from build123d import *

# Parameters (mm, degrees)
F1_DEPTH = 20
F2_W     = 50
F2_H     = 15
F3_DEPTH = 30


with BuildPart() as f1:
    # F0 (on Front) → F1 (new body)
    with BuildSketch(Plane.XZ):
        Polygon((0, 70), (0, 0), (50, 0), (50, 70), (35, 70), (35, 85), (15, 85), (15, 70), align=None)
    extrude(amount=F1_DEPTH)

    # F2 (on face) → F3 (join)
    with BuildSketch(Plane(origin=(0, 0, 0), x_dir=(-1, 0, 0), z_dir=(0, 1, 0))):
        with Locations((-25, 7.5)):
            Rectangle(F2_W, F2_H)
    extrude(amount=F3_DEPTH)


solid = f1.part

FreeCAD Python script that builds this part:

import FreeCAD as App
import Part
import Sketcher
from FreeCAD import Vector


def add_polygon(sketch, points):
    """Adds a closed chain of lines whose ends are joined by coincident constraints."""
    first, n = sketch.GeometryCount, len(points)
    for a, b in zip(points, points[1:] + points[:1]):
        sketch.addGeometry(Part.LineSegment(App.Vector(*a, 0), App.Vector(*b, 0)), False)
    for i in range(n):
        sketch.addConstraint(Sketcher.Constraint("Coincident", first + i, 2, first + (i + 1) % n, 1))

doc = App.newDocument("Part")
body = doc.addObject("PartDesign::Body", "Body")

# Sketch on XZ plane
sketch1 = body.newObject("Sketcher::SketchObject", "Sketch")
sketch1.AttachmentSupport = (doc.getObject("XZ_Plane"), [""])
sketch1.MapMode = "FlatFace"
add_polygon(sketch1, [(0, 70), (0, 0), (50, 0), (50, 70), (35, 70), (35, 85), (15, 85), (15, 70)])  # lines 0-7
sketch1.addConstraint([
    Sketcher.Constraint("Vertical", 0),
    Sketcher.Constraint("Horizontal", 1),
    Sketcher.Constraint("Vertical", 2),
    Sketcher.Constraint("Horizontal", 3),
    Sketcher.Constraint("Vertical", 4),
    Sketcher.Constraint("Horizontal", 5),
    Sketcher.Constraint("Vertical", 6),
    Sketcher.Constraint("Horizontal", 7),
    Sketcher.Constraint("Coincident", 0, 2, -1, 1),
    Sketcher.Constraint("Horizontal", 3, 2, 6, 2),
    Sketcher.Constraint("Equal", 3, 7),
    Sketcher.Constraint("Equal", 7, 4),
    Sketcher.Constraint("DistanceX", 1, 1, 1, 2, 50.0),
    Sketcher.Constraint("DistanceX", 3, 2, 3, 1, 15.0),
    Sketcher.Constraint("DistanceY", 0, 2, 0, 1, 70.0),
])
pad1 = body.newObject("PartDesign::Pad", "Pad")
pad1.Profile = sketch1
pad1.Length = 20

# Sketch on XZ plane
sketch2 = body.newObject("Sketcher::SketchObject", "Sketch001")
sketch2.AttachmentSupport = (doc.getObject("XZ_Plane"), [""])
sketch2.MapMode = "FlatFace"
add_polygon(sketch2, [(50, 15), (50, 0), (0, 0), (0, 15)])  # lines 0-3
sketch2.addConstraint([
    Sketcher.Constraint("Vertical", 0),
    Sketcher.Constraint("Horizontal", 1),
    Sketcher.Constraint("Vertical", 2),
    Sketcher.Constraint("Horizontal", 3),
    Sketcher.Constraint("Coincident", 1, 2, -1, 1),
    Sketcher.Constraint("DistanceX", 1, 2, 1, 1, 50.0),
    Sketcher.Constraint("DistanceY", 0, 2, 0, 1, 15.0),
])
pad2 = body.newObject("PartDesign::Pad", "Pad001")
pad2.Profile = sketch2
pad2.Length = 30
pad2.Reversed = True

doc.recompute()
